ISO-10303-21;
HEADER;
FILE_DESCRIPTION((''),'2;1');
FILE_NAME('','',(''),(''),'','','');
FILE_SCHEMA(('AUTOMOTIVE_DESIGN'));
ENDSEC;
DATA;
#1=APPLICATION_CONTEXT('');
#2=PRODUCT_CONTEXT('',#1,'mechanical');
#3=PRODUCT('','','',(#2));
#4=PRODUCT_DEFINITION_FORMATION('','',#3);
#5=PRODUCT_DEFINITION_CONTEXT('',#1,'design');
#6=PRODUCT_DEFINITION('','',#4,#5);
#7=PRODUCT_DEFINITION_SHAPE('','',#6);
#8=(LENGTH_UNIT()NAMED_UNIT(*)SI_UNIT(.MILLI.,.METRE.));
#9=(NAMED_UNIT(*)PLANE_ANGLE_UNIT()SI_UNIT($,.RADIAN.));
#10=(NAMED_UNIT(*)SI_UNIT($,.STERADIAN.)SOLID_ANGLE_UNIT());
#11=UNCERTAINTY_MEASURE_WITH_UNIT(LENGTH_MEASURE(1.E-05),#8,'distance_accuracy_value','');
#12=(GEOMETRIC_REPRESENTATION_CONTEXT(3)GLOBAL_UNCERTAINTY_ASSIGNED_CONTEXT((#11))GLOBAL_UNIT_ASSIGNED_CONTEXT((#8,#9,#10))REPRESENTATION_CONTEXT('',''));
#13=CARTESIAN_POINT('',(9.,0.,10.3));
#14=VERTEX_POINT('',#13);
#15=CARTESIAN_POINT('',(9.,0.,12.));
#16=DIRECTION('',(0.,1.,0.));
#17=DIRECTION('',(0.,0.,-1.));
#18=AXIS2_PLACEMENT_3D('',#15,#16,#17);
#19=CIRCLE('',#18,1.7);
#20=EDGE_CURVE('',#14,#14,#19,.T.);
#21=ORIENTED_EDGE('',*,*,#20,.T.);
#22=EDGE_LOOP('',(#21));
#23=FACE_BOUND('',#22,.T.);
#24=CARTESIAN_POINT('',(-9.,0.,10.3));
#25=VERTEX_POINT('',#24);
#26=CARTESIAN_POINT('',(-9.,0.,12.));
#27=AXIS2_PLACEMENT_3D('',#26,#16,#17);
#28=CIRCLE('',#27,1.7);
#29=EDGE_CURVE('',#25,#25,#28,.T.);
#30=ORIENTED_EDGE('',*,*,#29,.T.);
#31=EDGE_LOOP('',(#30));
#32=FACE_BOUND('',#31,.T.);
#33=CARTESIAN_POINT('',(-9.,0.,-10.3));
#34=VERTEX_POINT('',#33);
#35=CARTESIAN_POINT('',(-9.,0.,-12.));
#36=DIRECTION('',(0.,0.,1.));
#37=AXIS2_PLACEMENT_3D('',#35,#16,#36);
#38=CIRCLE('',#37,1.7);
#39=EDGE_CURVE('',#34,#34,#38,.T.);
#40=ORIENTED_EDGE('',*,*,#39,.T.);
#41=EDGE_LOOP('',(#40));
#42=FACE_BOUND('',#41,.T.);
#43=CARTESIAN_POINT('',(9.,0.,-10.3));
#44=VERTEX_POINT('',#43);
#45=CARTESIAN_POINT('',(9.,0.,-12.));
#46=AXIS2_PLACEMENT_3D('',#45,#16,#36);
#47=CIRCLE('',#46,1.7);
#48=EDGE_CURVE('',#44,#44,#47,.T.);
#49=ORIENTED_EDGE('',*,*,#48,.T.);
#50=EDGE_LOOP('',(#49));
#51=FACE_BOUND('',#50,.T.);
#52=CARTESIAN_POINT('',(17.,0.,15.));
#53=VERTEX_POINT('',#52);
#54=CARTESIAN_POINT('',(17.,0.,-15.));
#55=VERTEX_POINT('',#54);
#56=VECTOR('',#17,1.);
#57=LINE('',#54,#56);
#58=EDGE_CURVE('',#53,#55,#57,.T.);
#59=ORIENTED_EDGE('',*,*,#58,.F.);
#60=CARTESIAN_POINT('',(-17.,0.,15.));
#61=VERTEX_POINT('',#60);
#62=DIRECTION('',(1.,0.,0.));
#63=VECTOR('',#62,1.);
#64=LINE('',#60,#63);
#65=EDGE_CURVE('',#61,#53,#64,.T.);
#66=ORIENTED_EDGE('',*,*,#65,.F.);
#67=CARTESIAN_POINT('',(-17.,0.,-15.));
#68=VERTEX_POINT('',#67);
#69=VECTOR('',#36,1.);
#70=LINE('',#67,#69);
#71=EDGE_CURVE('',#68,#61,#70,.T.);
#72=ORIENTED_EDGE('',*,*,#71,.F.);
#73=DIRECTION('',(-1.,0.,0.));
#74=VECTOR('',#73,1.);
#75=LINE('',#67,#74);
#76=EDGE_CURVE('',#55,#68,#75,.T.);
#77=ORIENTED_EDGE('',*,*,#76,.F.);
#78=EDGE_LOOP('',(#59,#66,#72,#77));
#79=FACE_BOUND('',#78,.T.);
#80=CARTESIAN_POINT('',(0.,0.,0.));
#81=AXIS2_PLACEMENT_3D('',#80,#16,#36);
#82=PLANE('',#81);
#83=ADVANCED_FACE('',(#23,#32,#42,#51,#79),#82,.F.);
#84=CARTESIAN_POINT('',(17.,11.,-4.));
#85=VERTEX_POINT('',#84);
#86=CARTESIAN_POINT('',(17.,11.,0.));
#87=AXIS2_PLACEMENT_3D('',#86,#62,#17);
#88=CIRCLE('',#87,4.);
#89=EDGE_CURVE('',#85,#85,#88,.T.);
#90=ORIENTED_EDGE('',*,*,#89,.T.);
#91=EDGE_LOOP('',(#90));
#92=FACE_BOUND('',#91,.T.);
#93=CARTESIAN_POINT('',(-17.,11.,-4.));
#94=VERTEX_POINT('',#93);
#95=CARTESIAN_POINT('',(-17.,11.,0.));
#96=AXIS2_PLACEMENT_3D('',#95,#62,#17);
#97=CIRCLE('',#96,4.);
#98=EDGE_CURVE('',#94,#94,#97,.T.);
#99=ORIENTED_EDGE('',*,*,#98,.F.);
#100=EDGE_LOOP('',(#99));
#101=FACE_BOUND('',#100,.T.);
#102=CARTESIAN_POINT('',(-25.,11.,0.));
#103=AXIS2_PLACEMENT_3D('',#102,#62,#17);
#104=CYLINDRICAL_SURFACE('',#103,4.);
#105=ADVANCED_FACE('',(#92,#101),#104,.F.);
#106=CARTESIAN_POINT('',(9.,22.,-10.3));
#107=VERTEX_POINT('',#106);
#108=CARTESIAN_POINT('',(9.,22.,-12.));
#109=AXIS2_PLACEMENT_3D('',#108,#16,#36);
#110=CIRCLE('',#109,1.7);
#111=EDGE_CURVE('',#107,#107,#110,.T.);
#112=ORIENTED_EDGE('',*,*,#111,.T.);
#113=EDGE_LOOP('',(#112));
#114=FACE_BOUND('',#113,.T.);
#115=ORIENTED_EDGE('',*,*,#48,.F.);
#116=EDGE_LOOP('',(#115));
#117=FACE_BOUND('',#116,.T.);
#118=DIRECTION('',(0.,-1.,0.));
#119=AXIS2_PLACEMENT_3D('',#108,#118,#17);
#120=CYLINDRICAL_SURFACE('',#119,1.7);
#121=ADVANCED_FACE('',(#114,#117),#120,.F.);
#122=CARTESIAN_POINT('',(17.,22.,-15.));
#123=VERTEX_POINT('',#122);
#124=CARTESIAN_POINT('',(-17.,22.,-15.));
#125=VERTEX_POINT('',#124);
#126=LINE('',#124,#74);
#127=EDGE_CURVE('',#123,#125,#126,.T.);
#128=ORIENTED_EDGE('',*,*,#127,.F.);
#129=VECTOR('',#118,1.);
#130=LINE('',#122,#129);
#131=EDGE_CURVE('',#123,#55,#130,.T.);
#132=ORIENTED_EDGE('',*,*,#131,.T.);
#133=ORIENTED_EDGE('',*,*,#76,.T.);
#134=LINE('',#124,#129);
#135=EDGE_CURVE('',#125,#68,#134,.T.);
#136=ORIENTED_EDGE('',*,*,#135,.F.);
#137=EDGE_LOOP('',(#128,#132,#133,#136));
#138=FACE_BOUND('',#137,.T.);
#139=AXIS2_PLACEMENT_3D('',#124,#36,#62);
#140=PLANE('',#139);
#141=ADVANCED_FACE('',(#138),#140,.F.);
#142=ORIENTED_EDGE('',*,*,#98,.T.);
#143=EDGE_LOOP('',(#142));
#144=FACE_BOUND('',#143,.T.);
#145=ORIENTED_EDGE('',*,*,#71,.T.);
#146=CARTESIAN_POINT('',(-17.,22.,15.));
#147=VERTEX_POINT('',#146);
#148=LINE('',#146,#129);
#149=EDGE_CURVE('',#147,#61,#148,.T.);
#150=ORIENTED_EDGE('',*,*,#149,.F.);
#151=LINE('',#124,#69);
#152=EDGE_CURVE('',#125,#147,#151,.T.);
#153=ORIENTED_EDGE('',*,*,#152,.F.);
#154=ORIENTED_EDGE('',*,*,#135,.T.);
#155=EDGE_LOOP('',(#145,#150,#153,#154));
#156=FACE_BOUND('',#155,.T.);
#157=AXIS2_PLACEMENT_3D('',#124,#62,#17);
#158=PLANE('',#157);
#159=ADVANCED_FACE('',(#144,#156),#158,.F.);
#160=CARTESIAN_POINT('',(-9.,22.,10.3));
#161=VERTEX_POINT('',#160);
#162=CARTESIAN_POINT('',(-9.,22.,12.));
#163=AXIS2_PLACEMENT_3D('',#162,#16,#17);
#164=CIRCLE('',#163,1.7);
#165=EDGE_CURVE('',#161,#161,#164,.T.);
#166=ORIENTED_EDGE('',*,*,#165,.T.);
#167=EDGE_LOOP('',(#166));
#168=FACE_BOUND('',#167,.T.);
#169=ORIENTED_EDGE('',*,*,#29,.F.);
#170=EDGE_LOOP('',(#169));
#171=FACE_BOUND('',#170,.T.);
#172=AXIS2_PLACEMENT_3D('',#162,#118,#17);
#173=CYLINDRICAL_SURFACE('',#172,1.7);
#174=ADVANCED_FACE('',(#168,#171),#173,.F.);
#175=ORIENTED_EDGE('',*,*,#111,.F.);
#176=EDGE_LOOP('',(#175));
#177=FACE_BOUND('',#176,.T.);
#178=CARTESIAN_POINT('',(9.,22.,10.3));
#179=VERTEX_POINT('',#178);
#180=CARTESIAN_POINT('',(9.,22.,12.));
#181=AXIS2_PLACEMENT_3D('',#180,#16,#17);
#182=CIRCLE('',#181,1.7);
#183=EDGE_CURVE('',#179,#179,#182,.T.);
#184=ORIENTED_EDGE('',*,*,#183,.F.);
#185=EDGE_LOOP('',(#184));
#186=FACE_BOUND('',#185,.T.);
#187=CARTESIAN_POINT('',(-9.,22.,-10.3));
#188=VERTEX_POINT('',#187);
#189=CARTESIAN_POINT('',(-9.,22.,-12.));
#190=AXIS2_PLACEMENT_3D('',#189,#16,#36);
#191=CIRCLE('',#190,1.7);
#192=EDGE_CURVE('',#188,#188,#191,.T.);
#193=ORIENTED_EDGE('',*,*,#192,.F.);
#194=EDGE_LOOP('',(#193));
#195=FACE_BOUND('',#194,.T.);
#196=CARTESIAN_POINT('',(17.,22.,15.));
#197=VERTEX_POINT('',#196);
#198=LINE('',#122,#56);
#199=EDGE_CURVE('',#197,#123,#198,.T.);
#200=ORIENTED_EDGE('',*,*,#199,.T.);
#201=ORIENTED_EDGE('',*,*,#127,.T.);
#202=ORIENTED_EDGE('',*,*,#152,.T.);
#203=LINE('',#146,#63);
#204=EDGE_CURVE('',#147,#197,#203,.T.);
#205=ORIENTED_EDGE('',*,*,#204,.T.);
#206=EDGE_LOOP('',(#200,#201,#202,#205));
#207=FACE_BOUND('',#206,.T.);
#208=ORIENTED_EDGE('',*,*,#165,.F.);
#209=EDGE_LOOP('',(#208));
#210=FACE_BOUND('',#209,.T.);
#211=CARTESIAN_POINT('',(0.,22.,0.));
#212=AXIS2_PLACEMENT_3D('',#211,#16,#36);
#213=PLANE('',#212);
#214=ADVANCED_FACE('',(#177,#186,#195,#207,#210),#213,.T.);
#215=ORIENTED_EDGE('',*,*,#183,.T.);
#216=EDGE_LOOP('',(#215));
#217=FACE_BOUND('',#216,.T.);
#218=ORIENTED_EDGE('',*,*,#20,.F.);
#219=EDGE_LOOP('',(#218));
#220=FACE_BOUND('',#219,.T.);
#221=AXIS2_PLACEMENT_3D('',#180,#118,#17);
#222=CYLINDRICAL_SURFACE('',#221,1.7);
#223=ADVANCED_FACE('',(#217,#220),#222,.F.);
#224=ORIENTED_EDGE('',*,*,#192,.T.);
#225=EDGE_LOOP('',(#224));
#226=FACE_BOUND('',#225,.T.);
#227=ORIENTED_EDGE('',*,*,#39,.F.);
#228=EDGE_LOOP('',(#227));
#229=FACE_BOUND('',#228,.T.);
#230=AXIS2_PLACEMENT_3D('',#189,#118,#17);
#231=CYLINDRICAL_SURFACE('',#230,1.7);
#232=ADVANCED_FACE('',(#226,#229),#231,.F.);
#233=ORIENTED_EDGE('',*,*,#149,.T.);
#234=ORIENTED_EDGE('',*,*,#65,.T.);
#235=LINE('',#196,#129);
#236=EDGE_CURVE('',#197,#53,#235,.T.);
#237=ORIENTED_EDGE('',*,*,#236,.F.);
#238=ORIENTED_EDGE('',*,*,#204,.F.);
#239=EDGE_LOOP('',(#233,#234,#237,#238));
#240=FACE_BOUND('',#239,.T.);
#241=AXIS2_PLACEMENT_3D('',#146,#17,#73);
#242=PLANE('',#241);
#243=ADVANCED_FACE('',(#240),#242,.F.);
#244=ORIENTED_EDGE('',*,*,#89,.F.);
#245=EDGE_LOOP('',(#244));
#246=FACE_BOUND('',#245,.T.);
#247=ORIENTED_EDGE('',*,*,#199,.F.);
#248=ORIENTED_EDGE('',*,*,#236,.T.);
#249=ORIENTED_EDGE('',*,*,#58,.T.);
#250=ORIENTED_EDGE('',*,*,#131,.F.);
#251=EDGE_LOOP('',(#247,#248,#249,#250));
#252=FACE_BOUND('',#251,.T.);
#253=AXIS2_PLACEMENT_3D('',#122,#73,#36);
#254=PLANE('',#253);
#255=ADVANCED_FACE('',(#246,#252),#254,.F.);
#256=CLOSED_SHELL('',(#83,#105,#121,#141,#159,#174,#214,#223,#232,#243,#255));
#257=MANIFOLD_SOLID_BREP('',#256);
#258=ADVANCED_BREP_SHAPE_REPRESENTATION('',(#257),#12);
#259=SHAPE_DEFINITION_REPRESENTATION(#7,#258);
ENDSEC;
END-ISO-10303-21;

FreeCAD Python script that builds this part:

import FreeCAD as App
import Part
import Sketcher

V = App.Vector
Q = App.Units.Quantity

doc = App.newDocument("Part")
body = doc.addObject("PartDesign::Body", "Body")

# Sketch on XZ plane
sketch1 = body.newObject("Sketcher::SketchObject", "Sketch")
sketch1.AttachmentSupport = (doc.getObject("XZ_Plane"), [""])
sketch1.MapMode = "FlatFace"
sketch1.addGeometry([
    Part.LineSegment(V(-17, -15, 0), V(-17, 15, 0)),  # 0
    Part.LineSegment(V(-17, 15, 0), V(17, 15, 0)),  # 1
    Part.LineSegment(V(17, 15, 0), V(17, -15, 0)),  # 2
    Part.LineSegment(V(17, -15, 0), V(-17, -15, 0)),  # 3
    Part.Circle(V(-9, 12, 0), V(0, 0, 1), 1.7),  # 4
    Part.Circle(V(9, 12, 0), V(0, 0, 1), 1.7),  # 5
    Part.Circle(V(-9, -12, 0), V(0, 0, 1), 1.7),  # 6
    Part.Circle(V(9, -12, 0), V(0, 0, 1), 1.7),  # 7
], False)
sketch1.addConstraint([
    Sketcher.Constraint("Coincident", 0, 2, 1, 1),
    Sketcher.Constraint("Coincident", 1, 2, 2, 1),
    Sketcher.Constraint("Coincident", 2, 2, 3, 1),
    Sketcher.Constraint("Coincident", 3, 2, 0, 1),
    Sketcher.Constraint("Vertical", 0),
    Sketcher.Constraint("Horizontal", 1),
    Sketcher.Constraint("Vertical", 2),
    Sketcher.Constraint("Horizontal", 3),
    Sketcher.Constraint("Equal", 4, 5),
    Sketcher.Constraint("Equal", 5, 6),
    Sketcher.Constraint("Equal", 6, 7),
    Sketcher.Constraint("Symmetric", 5, 3, 6, 3, -1, 1),
    Sketcher.Constraint("Symmetric", 4, 3, 7, 3, -1, 1),
    Sketcher.Constraint("Symmetric", 0, 2, 2, 2, -1, 1),
    Sketcher.Constraint("Symmetric", 4, 3, 5, 3, -2),
    Sketcher.Constraint("Diameter", 4, Q("3.4 mm")),
    Sketcher.Constraint("DistanceX", 1, 1, 1, 2, Q("34 mm")),
    Sketcher.Constraint("DistanceY", 0, 1, 0, 2, Q("30 mm")),
    Sketcher.Constraint("DistanceX", 4, 3, -1, 1, Q("9 mm")),
    Sketcher.Constraint("DistanceY", -1, 1, 4, 3, Q("12 mm")),
])
pad1 = body.newObject("PartDesign::Pad", "Pad")
pad1.Profile = sketch1
pad1.Length = 22
pad1.Reversed = True

# Sketch on YZ plane
sketch2 = body.newObject("Sketcher::SketchObject", "Sketch001")
sketch2.AttachmentSupport = (doc.getObject("YZ_Plane"), [""])
sketch2.MapMode = "FlatFace"
sketch2.AttachmentOffset = App.Placement(V(0, 0, 17), App.Rotation())
sketch2.addGeometry(Part.Circle(V(11, 0, 0), V(0, 0, 1), 4), False)
sketch2.addConstraint([
    Sketcher.Constraint("PointOnObject", 0, 3, -1),
    Sketcher.Constraint("Diameter", 0, Q("8 mm")),
    Sketcher.Constraint("DistanceX", -1, 1, 0, 3, Q("11 mm")),
])
pocket1 = body.newObject("PartDesign::Pocket", "Pocket")
pocket1.Profile = sketch2
pocket1.Length = 42

doc.recompute()
